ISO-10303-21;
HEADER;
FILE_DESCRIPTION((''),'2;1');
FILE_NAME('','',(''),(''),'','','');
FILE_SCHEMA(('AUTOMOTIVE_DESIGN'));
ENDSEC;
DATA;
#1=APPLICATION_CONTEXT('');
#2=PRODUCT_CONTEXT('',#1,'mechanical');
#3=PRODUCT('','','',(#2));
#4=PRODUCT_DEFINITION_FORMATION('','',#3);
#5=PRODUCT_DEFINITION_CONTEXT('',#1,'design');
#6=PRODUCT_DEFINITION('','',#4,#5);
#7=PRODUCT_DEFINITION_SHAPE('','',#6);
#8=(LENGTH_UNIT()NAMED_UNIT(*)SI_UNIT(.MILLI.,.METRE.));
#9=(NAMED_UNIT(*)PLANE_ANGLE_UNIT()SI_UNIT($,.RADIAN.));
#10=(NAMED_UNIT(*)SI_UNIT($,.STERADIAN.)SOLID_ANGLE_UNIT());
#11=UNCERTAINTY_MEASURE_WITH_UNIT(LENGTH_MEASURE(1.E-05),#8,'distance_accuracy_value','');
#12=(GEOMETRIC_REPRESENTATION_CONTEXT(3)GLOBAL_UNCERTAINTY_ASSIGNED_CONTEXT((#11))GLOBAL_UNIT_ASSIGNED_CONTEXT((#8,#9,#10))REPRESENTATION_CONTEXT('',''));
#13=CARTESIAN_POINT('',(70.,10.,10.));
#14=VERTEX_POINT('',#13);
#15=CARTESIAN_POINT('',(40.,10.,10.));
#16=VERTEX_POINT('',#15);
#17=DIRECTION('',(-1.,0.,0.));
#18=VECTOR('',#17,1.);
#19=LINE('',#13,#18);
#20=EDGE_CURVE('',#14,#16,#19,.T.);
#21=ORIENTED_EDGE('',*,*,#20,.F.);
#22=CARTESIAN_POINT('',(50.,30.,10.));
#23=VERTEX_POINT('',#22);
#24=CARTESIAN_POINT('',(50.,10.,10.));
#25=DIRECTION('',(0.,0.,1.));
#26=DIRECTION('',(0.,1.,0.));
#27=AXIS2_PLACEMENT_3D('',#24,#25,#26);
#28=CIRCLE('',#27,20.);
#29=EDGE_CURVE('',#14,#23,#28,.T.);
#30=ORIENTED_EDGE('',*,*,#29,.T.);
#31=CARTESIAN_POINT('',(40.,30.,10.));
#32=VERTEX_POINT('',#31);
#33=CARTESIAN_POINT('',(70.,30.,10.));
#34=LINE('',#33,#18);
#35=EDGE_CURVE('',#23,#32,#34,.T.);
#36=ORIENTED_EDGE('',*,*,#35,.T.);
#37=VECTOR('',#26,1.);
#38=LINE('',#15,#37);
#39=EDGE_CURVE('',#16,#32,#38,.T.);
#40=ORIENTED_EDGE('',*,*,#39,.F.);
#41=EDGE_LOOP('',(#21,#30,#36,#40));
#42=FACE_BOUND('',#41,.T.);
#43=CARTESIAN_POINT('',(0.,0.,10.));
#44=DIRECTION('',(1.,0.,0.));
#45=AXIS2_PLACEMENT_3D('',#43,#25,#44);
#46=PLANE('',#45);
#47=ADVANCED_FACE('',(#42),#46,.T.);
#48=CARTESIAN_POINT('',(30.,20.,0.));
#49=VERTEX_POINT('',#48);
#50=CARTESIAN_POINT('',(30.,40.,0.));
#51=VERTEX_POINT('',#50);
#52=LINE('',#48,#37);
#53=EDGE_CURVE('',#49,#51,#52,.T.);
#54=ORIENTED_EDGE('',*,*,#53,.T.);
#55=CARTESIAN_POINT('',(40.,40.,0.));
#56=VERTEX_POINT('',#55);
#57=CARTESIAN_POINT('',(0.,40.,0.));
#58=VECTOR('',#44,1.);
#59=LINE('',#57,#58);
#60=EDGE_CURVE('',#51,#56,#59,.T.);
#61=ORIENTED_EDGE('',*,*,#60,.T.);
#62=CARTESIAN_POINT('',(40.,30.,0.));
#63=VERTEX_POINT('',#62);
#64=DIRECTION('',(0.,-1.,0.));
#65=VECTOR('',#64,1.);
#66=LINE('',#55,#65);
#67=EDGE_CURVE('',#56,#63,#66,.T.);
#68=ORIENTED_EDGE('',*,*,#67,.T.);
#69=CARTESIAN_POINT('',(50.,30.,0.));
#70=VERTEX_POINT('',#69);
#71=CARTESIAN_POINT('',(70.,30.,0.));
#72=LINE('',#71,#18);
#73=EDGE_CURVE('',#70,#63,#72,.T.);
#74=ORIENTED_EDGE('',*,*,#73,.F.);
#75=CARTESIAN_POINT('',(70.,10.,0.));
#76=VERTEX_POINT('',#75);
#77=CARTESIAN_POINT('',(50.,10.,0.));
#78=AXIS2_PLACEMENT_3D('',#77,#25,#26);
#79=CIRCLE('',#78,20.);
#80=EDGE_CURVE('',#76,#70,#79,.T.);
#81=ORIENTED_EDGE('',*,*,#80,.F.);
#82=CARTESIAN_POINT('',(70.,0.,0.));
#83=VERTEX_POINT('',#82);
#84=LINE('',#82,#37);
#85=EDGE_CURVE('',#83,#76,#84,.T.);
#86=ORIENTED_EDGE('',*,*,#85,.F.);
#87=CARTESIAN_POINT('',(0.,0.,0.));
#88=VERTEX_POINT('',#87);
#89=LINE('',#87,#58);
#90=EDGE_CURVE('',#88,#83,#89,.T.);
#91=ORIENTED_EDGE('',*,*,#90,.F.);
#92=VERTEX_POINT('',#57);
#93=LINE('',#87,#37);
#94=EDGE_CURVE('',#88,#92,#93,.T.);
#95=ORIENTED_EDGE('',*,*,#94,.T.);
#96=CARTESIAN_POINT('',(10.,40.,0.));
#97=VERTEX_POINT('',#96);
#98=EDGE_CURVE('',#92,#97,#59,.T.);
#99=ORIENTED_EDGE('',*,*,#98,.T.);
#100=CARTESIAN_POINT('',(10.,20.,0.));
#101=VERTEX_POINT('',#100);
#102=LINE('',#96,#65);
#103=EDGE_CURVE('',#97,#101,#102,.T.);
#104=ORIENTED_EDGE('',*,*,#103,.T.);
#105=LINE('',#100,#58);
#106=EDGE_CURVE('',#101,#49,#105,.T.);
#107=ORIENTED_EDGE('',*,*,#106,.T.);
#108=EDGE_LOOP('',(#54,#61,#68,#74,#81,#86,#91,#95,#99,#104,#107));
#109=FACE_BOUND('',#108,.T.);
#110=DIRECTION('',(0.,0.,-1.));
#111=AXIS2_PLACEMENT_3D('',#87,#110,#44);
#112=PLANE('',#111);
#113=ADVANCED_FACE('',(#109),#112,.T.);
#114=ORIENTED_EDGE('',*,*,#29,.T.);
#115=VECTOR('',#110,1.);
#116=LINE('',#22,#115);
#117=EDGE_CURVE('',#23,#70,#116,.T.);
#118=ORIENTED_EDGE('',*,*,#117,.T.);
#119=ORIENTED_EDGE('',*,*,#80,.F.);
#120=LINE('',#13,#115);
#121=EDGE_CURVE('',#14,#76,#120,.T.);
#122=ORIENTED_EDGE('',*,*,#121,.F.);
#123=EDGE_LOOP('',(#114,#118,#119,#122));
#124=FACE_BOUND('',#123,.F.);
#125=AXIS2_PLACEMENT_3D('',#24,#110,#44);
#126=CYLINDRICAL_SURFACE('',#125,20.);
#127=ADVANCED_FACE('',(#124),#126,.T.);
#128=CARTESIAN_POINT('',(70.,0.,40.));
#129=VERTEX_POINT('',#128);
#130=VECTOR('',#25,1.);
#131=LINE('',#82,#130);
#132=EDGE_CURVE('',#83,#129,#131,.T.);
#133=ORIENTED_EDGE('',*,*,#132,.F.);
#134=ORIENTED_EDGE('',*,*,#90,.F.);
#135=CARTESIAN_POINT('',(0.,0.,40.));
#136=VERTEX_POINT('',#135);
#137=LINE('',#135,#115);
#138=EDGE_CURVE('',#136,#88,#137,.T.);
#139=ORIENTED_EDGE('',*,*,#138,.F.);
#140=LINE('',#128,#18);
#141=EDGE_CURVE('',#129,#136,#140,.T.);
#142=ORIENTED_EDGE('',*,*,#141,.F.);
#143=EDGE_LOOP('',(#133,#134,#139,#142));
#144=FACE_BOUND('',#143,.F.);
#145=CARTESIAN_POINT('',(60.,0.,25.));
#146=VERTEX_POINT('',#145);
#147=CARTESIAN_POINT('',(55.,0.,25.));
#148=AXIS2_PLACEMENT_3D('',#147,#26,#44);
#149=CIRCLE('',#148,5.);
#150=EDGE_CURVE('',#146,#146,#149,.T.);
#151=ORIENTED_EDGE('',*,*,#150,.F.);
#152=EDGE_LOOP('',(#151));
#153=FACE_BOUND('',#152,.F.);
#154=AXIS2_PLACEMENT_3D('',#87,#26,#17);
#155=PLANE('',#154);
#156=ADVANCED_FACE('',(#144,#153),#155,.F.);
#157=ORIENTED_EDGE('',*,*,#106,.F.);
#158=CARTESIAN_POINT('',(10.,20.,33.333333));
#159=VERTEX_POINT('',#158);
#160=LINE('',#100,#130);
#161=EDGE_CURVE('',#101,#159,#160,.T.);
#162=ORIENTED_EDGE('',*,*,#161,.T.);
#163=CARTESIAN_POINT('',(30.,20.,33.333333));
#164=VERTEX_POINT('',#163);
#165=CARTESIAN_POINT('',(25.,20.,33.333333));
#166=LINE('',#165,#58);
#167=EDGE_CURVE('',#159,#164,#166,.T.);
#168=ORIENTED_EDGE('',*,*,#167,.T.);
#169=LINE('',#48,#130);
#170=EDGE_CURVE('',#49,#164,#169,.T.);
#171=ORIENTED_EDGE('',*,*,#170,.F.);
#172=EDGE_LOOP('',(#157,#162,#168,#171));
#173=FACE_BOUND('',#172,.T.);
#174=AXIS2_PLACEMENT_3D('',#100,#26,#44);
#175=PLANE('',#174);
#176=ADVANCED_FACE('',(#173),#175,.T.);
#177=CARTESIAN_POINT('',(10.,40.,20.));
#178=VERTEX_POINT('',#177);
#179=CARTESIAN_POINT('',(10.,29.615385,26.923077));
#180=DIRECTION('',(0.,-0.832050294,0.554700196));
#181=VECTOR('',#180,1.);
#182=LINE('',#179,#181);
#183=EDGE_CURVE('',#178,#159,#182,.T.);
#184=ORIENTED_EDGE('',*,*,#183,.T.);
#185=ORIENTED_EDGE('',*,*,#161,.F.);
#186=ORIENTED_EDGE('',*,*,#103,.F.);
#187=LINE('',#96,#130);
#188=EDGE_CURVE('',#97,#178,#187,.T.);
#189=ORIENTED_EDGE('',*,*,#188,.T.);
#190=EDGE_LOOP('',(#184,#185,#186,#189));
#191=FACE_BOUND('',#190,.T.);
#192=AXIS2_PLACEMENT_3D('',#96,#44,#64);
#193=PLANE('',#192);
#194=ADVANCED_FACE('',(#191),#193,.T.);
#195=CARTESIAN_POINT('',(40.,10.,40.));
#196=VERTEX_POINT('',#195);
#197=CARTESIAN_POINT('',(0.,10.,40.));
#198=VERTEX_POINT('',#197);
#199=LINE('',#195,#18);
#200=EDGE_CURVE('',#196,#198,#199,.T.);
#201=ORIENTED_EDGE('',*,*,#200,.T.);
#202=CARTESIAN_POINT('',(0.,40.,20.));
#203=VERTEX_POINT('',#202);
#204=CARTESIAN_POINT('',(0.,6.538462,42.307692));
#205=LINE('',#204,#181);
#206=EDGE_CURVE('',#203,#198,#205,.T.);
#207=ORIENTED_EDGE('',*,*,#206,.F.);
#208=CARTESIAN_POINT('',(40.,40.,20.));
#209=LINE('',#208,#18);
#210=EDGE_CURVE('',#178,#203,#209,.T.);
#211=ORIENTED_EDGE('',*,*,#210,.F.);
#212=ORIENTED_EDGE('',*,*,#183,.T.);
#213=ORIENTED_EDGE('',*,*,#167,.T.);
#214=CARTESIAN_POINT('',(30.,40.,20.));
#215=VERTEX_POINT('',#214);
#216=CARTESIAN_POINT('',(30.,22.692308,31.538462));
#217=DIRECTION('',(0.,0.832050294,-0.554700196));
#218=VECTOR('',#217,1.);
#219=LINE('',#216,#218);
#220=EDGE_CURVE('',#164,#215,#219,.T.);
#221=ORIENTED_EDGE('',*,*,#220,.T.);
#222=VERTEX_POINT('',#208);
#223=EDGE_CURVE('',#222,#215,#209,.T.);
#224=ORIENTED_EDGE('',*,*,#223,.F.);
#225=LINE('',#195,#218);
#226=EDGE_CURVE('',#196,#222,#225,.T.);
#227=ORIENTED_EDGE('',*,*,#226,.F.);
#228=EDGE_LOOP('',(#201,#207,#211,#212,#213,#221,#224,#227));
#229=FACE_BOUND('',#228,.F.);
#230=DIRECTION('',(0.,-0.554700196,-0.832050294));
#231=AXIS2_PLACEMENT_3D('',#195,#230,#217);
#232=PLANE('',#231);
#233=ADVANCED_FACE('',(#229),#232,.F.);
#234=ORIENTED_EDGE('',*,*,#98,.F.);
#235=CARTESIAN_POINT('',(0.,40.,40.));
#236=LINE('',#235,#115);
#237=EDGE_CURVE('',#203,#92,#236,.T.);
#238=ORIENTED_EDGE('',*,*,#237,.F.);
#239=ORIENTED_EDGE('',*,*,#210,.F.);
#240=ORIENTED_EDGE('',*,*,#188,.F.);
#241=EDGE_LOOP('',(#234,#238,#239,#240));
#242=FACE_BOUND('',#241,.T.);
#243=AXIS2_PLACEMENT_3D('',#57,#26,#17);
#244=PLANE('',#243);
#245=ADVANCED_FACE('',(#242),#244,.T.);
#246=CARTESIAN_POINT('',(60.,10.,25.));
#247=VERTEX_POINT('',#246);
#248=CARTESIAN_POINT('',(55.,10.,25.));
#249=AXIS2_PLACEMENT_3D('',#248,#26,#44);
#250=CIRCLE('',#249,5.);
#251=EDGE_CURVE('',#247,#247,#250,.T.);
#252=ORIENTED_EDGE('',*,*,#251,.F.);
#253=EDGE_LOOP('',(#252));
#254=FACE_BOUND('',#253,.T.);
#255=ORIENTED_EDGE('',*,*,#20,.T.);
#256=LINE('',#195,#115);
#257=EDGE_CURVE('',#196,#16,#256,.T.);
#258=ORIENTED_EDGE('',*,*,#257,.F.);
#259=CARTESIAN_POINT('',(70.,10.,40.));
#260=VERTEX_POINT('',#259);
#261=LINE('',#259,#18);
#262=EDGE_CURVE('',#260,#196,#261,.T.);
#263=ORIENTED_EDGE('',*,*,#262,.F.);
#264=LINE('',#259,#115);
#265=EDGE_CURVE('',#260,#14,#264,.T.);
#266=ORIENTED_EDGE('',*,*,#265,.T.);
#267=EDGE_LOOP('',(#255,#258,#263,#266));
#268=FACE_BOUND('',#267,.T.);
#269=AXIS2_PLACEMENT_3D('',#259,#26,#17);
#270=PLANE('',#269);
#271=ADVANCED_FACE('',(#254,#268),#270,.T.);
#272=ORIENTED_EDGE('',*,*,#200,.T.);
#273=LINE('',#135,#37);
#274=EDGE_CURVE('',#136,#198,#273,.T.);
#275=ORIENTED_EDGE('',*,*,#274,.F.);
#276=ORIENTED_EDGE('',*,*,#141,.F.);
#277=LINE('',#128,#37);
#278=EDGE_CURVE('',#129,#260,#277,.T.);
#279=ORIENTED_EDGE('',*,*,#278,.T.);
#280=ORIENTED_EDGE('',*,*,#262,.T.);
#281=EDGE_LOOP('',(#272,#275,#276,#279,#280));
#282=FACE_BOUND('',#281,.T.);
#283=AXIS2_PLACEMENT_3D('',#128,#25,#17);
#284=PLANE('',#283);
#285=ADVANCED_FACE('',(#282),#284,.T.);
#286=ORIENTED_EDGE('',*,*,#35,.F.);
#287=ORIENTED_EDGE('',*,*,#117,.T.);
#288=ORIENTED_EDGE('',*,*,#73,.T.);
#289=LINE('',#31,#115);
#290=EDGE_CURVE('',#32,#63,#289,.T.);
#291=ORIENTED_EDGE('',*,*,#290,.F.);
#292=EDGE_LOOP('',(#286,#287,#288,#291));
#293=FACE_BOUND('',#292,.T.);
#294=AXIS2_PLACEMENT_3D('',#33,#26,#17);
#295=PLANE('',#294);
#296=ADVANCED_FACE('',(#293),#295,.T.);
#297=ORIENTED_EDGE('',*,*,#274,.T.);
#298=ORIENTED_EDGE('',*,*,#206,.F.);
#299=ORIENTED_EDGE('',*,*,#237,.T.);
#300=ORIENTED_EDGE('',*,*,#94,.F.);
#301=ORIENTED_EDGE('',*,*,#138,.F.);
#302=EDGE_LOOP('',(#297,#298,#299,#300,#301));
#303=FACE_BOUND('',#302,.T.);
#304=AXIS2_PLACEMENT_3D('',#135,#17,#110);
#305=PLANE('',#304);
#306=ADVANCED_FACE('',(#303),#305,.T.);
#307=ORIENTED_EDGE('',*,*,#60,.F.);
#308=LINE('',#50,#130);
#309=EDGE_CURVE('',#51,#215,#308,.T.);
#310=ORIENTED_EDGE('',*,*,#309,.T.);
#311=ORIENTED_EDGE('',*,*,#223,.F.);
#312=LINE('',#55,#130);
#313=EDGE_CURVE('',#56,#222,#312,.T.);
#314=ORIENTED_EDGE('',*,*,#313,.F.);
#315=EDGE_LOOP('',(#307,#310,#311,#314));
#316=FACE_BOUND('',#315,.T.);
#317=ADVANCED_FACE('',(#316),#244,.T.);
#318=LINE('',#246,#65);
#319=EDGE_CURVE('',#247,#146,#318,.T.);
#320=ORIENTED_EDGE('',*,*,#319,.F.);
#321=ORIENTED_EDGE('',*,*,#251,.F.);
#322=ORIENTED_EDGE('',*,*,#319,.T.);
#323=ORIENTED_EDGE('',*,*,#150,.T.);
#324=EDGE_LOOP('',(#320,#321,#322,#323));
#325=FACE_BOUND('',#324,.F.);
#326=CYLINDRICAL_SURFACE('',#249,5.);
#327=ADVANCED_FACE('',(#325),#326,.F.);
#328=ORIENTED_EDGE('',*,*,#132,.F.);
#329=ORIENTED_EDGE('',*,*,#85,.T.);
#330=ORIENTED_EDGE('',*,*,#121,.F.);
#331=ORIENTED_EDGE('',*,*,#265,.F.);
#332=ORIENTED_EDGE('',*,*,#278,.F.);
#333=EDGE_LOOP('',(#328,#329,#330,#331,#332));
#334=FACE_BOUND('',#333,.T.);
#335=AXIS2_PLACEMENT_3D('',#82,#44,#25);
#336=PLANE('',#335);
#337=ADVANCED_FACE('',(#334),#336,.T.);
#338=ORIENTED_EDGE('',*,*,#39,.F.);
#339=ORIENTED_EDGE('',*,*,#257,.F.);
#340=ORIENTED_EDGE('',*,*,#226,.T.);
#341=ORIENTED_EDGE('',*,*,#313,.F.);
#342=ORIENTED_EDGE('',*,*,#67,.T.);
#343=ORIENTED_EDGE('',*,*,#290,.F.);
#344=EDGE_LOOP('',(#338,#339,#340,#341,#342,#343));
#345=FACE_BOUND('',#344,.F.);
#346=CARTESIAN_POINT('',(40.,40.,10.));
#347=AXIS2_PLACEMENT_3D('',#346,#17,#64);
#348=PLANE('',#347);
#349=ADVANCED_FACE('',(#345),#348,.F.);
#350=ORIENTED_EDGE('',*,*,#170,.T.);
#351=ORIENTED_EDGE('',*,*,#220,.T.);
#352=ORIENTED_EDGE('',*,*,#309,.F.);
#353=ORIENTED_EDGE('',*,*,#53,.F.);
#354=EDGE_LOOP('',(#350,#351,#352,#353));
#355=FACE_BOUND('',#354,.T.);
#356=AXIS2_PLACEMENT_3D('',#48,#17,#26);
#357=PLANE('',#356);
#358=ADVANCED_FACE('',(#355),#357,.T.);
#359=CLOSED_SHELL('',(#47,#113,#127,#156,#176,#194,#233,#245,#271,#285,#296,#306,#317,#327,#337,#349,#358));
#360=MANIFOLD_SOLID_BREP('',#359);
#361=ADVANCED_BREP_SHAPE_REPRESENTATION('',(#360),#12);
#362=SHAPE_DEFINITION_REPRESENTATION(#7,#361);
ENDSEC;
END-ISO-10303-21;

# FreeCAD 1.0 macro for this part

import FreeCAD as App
import Part
import Sketcher
Q = App.Units.Quantity


def edges_at(feature, points):
    """Names of the edges that pass closest to the given points."""
    edges = feature.Shape.Edges
    near = lambda p: min(range(len(edges)), key=lambda i: edges[i].distToShape(Part.Vertex(*p))[0])
    return sorted({f"Edge{near(p) + 1}" for p in points})

doc = App.newDocument("Part")
body = doc.addObject("PartDesign::Body", "Body")

# Sketch on XZ plane
sketch1 = body.newObject("Sketcher::SketchObject", "Sketch")
sketch1.AttachmentSupport = (doc.getObject("XZ_Plane"), [""])
sketch1.MapMode = "FlatFace"
sketch1.addGeometry([
    Part.LineSegment(App.Vector(70, 0, 0), App.Vector(0, 0, 0)),
    Part.LineSegment(App.Vector(0, 0, 0), App.Vector(0, 40, 0)),
    Part.LineSegment(App.Vector(0, 40, 0), App.Vector(70, 40, 0)),
    Part.LineSegment(App.Vector(70, 40, 0), App.Vector(70, 0, 0)),
], False)
sketch1.addConstraint([
    Sketcher.Constraint("Coincident", 0, 2, 1, 1),
    Sketcher.Constraint("Coincident", 1, 2, 2, 1),
    Sketcher.Constraint("Coincident", 2, 2, 3, 1),
    Sketcher.Constraint("Coincident", 3, 2, 0, 1),
    Sketcher.Constraint("Horizontal", 0),
    Sketcher.Constraint("Vertical", 1),
    Sketcher.Constraint("Horizontal", 2),
    Sketcher.Constraint("Vertical", 3),
    Sketcher.Constraint("Coincident", 0, 2, -1, 1),
    Sketcher.Constraint("DistanceX", 0, 2, 0, 1, Q("70 mm")),
    Sketcher.Constraint("DistanceY", 1, 1, 1, 2, Q("40 mm")),
])
pad1 = body.newObject("PartDesign::Pad", "Pad")
pad1.Profile = sketch1
pad1.Length = 40
pad1.Reversed = True

# Sketch on XY plane
sketch2 = body.newObject("Sketcher::SketchObject", "Sketch001")
sketch2.AttachmentSupport = (doc.getObject("XY_Plane"), [""])
sketch2.MapMode = "FlatFace"
sketch2.AttachmentOffset = App.Placement(App.Vector(0, 0, 40), App.Rotation())
sketch2.addGeometry([
    Part.LineSegment(App.Vector(70, 40, 0), App.Vector(40, 40, 0)),
    Part.LineSegment(App.Vector(40, 40, 0), App.Vector(40, 10, 0)),
    Part.LineSegment(App.Vector(40, 10, 0), App.Vector(70, 10, 0)),
    Part.LineSegment(App.Vector(70, 10, 0), App.Vector(70, 40, 0)),
], False)
sketch2.addConstraint([
    Sketcher.Constraint("Coincident", 0, 2, 1, 1),
    Sketcher.Constraint("Coincident", 1, 2, 2, 1),
    Sketcher.Constraint("Coincident", 2, 2, 3, 1),
    Sketcher.Constraint("Coincident", 3, 2, 0, 1),
    Sketcher.Constraint("Horizontal", 0),
    Sketcher.Constraint("Vertical", 1),
    Sketcher.Constraint("Horizontal", 2),
    Sketcher.Constraint("Vertical", 3),
    Sketcher.Constraint("Equal", 2, 1),
    Sketcher.Constraint("DistanceX", 0, 2, 0, 1, Q("30 mm")),
    Sketcher.Constraint("DistanceY", -1, 1, 1, 2, Q("10 mm")),
    Sketcher.Constraint("DistanceX", -1, 1, 0, 2, Q("40 mm")),
])
pocket1 = body.newObject("PartDesign::Pocket", "Pocket")
pocket1.Profile = sketch2
pocket1.Length = 30

# Sketch on XY plane
sketch3 = body.newObject("Sketcher::SketchObject", "Sketch002")
sketch3.AttachmentSupport = (doc.getObject("XY_Plane"), [""])
sketch3.MapMode = "FlatFace"
sketch3.AttachmentOffset = App.Placement(App.Vector(0, 0, 10), App.Rotation())
sketch3.addGeometry([
    Part.LineSegment(App.Vector(70, 40, 0), App.Vector(40, 40, 0)),
    Part.LineSegment(App.Vector(40, 40, 0), App.Vector(40, 30, 0)),
    Part.LineSegment(App.Vector(40, 30, 0), App.Vector(70, 30, 0)),
    Part.LineSegment(App.Vector(70, 30, 0), App.Vector(70, 40, 0)),
], False)
sketch3.addConstraint([
    Sketcher.Constraint("Coincident", 0, 2, 1, 1),
    Sketcher.Constraint("Coincident", 1, 2, 2, 1),
    Sketcher.Constraint("Coincident", 2, 2, 3, 1),
    Sketcher.Constraint("Coincident", 3, 2, 0, 1),
    Sketcher.Constraint("Horizontal", 0),
    Sketcher.Constraint("Vertical", 1),
    Sketcher.Constraint("Horizontal", 2),
    Sketcher.Constraint("Vertical", 3),
    Sketcher.Constraint("DistanceY", 1, 2, 1, 1, Q("10 mm")),
    Sketcher.Constraint("DistanceX", 0, 2, 0, 1, Q("30 mm")),
    Sketcher.Constraint("DistanceX", -1, 1, 0, 2, Q("40 mm")),
    Sketcher.Constraint("DistanceY", -1, 1, 0, 2, Q("40 mm")),
])
pocket2 = body.newObject("PartDesign::Pocket", "Pocket001")
pocket2.Profile = sketch3
pocket2.Length = 10

# Sketch on YZ plane
sketch4 = body.newObject("Sketcher::SketchObject", "Sketch003")
sketch4.AttachmentSupport = (doc.getObject("YZ_Plane"), [""])
sketch4.MapMode = "FlatFace"
sketch4.AttachmentOffset = App.Placement(App.Vector(0, 0, 40), App.Rotation())
sketch4.addGeometry([
    Part.LineSegment(App.Vector(40, 40, 0), App.Vector(10, 40, 0)),
    Part.LineSegment(App.Vector(10, 40, 0), App.Vector(40, 20, 0)),
    Part.LineSegment(App.Vector(40, 20, 0), App.Vector(40, 40, 0)),
], False)
sketch4.addConstraint([
    Sketcher.Constraint("Coincident", 0, 2, 1, 1),
    Sketcher.Constraint("Coincident", 1, 2, 2, 1),
    Sketcher.Constraint("Coincident", 2, 2, 0, 1),
    Sketcher.Constraint("Horizontal", 0),
    Sketcher.Constraint("Vertical", 2),
    Sketcher.Constraint("DistanceY", 2, 1, 2, 2, Q("20 mm")),
    Sketcher.Constraint("DistanceY", -1, 1, 1, 2, Q("20 mm")),
    Sketcher.Constraint("DistanceX", 0, 2, 0, 1, Q("30 mm")),
    Sketcher.Constraint("DistanceX", -1, 1, 0, 2, Q("10 mm")),
])
pocket3 = body.newObject("PartDesign::Pocket", "Pocket002")
pocket3.Profile = sketch4
pocket3.Type = "ThroughAll"

# Sketch on XY plane
sketch5 = body.newObject("Sketcher::SketchObject", "Sketch004")
sketch5.AttachmentSupport = (doc.getObject("XY_Plane"), [""])
sketch5.MapMode = "FlatFace"
sketch5.addGeometry([
    Part.LineSegment(App.Vector(10, 40, 0), App.Vector(30, 40, 0)),
    Part.LineSegment(App.Vector(30, 40, 0), App.Vector(30, 20, 0)),
    Part.LineSegment(App.Vector(30, 20, 0), App.Vector(10, 20, 0)),
    Part.LineSegment(App.Vector(10, 20, 0), App.Vector(10, 40, 0)),
], False)
sketch5.addConstraint([
    Sketcher.Constraint("Coincident", 0, 2, 1, 1),
    Sketcher.Constraint("Coincident", 1, 2, 2, 1),
    Sketcher.Constraint("Coincident", 2, 2, 3, 1),
    Sketcher.Constraint("Coincident", 3, 2, 0, 1),
    Sketcher.Constraint("Horizontal", 0),
    Sketcher.Constraint("Vertical", 1),
    Sketcher.Constraint("Horizontal", 2),
    Sketcher.Constraint("Vertical", 3),
    Sketcher.Constraint("Equal", 2, 1),
    Sketcher.Constraint("DistanceX", 0, 1, 0, 2, Q("20 mm")),
    Sketcher.Constraint("DistanceY", -1, 1, 1, 2, Q("20 mm")),
    Sketcher.Constraint("DistanceX", -1, 1, 0, 2, Q("30 mm")),
])
pocket4 = body.newObject("PartDesign::Pocket", "Pocket003")
pocket4.Profile = sketch5
pocket4.Type = "ThroughAll"
pocket4.Reversed = True
doc.recompute()

fillet = body.newObject("PartDesign::Fillet", "Fillet")
fillet.Base = (pocket4, edges_at(pocket4, [(70, 30, 5)]))
fillet.Radius = 20

# Sketch on XZ plane
sketch6 = body.newObject("Sketcher::SketchObject", "Sketch005")
sketch6.AttachmentSupport = (doc.getObject("XZ_Plane"), [""])
sketch6.MapMode = "FlatFace"
sketch6.AttachmentOffset = App.Placement(App.Vector(0, 0, -10), App.Rotation())
sketch6.addGeometry(Part.Circle(App.Vector(55, 25, 0), App.Vector(0, 0, 1), 5), False)
sketch6.addConstraint([
    Sketcher.Constraint("Diameter", 0, Q("10 mm")),
    Sketcher.Constraint("DistanceX", -1, 1, 0, 3, Q("55 mm")),
    Sketcher.Constraint("DistanceY", -1, 1, 0, 3, Q("25 mm")),
])
pocket5 = body.newObject("PartDesign::Pocket", "Pocket004")
pocket5.Profile = sketch6
pocket5.Type = "ThroughAll"
pocket5.Reversed = True

doc.recompute()
